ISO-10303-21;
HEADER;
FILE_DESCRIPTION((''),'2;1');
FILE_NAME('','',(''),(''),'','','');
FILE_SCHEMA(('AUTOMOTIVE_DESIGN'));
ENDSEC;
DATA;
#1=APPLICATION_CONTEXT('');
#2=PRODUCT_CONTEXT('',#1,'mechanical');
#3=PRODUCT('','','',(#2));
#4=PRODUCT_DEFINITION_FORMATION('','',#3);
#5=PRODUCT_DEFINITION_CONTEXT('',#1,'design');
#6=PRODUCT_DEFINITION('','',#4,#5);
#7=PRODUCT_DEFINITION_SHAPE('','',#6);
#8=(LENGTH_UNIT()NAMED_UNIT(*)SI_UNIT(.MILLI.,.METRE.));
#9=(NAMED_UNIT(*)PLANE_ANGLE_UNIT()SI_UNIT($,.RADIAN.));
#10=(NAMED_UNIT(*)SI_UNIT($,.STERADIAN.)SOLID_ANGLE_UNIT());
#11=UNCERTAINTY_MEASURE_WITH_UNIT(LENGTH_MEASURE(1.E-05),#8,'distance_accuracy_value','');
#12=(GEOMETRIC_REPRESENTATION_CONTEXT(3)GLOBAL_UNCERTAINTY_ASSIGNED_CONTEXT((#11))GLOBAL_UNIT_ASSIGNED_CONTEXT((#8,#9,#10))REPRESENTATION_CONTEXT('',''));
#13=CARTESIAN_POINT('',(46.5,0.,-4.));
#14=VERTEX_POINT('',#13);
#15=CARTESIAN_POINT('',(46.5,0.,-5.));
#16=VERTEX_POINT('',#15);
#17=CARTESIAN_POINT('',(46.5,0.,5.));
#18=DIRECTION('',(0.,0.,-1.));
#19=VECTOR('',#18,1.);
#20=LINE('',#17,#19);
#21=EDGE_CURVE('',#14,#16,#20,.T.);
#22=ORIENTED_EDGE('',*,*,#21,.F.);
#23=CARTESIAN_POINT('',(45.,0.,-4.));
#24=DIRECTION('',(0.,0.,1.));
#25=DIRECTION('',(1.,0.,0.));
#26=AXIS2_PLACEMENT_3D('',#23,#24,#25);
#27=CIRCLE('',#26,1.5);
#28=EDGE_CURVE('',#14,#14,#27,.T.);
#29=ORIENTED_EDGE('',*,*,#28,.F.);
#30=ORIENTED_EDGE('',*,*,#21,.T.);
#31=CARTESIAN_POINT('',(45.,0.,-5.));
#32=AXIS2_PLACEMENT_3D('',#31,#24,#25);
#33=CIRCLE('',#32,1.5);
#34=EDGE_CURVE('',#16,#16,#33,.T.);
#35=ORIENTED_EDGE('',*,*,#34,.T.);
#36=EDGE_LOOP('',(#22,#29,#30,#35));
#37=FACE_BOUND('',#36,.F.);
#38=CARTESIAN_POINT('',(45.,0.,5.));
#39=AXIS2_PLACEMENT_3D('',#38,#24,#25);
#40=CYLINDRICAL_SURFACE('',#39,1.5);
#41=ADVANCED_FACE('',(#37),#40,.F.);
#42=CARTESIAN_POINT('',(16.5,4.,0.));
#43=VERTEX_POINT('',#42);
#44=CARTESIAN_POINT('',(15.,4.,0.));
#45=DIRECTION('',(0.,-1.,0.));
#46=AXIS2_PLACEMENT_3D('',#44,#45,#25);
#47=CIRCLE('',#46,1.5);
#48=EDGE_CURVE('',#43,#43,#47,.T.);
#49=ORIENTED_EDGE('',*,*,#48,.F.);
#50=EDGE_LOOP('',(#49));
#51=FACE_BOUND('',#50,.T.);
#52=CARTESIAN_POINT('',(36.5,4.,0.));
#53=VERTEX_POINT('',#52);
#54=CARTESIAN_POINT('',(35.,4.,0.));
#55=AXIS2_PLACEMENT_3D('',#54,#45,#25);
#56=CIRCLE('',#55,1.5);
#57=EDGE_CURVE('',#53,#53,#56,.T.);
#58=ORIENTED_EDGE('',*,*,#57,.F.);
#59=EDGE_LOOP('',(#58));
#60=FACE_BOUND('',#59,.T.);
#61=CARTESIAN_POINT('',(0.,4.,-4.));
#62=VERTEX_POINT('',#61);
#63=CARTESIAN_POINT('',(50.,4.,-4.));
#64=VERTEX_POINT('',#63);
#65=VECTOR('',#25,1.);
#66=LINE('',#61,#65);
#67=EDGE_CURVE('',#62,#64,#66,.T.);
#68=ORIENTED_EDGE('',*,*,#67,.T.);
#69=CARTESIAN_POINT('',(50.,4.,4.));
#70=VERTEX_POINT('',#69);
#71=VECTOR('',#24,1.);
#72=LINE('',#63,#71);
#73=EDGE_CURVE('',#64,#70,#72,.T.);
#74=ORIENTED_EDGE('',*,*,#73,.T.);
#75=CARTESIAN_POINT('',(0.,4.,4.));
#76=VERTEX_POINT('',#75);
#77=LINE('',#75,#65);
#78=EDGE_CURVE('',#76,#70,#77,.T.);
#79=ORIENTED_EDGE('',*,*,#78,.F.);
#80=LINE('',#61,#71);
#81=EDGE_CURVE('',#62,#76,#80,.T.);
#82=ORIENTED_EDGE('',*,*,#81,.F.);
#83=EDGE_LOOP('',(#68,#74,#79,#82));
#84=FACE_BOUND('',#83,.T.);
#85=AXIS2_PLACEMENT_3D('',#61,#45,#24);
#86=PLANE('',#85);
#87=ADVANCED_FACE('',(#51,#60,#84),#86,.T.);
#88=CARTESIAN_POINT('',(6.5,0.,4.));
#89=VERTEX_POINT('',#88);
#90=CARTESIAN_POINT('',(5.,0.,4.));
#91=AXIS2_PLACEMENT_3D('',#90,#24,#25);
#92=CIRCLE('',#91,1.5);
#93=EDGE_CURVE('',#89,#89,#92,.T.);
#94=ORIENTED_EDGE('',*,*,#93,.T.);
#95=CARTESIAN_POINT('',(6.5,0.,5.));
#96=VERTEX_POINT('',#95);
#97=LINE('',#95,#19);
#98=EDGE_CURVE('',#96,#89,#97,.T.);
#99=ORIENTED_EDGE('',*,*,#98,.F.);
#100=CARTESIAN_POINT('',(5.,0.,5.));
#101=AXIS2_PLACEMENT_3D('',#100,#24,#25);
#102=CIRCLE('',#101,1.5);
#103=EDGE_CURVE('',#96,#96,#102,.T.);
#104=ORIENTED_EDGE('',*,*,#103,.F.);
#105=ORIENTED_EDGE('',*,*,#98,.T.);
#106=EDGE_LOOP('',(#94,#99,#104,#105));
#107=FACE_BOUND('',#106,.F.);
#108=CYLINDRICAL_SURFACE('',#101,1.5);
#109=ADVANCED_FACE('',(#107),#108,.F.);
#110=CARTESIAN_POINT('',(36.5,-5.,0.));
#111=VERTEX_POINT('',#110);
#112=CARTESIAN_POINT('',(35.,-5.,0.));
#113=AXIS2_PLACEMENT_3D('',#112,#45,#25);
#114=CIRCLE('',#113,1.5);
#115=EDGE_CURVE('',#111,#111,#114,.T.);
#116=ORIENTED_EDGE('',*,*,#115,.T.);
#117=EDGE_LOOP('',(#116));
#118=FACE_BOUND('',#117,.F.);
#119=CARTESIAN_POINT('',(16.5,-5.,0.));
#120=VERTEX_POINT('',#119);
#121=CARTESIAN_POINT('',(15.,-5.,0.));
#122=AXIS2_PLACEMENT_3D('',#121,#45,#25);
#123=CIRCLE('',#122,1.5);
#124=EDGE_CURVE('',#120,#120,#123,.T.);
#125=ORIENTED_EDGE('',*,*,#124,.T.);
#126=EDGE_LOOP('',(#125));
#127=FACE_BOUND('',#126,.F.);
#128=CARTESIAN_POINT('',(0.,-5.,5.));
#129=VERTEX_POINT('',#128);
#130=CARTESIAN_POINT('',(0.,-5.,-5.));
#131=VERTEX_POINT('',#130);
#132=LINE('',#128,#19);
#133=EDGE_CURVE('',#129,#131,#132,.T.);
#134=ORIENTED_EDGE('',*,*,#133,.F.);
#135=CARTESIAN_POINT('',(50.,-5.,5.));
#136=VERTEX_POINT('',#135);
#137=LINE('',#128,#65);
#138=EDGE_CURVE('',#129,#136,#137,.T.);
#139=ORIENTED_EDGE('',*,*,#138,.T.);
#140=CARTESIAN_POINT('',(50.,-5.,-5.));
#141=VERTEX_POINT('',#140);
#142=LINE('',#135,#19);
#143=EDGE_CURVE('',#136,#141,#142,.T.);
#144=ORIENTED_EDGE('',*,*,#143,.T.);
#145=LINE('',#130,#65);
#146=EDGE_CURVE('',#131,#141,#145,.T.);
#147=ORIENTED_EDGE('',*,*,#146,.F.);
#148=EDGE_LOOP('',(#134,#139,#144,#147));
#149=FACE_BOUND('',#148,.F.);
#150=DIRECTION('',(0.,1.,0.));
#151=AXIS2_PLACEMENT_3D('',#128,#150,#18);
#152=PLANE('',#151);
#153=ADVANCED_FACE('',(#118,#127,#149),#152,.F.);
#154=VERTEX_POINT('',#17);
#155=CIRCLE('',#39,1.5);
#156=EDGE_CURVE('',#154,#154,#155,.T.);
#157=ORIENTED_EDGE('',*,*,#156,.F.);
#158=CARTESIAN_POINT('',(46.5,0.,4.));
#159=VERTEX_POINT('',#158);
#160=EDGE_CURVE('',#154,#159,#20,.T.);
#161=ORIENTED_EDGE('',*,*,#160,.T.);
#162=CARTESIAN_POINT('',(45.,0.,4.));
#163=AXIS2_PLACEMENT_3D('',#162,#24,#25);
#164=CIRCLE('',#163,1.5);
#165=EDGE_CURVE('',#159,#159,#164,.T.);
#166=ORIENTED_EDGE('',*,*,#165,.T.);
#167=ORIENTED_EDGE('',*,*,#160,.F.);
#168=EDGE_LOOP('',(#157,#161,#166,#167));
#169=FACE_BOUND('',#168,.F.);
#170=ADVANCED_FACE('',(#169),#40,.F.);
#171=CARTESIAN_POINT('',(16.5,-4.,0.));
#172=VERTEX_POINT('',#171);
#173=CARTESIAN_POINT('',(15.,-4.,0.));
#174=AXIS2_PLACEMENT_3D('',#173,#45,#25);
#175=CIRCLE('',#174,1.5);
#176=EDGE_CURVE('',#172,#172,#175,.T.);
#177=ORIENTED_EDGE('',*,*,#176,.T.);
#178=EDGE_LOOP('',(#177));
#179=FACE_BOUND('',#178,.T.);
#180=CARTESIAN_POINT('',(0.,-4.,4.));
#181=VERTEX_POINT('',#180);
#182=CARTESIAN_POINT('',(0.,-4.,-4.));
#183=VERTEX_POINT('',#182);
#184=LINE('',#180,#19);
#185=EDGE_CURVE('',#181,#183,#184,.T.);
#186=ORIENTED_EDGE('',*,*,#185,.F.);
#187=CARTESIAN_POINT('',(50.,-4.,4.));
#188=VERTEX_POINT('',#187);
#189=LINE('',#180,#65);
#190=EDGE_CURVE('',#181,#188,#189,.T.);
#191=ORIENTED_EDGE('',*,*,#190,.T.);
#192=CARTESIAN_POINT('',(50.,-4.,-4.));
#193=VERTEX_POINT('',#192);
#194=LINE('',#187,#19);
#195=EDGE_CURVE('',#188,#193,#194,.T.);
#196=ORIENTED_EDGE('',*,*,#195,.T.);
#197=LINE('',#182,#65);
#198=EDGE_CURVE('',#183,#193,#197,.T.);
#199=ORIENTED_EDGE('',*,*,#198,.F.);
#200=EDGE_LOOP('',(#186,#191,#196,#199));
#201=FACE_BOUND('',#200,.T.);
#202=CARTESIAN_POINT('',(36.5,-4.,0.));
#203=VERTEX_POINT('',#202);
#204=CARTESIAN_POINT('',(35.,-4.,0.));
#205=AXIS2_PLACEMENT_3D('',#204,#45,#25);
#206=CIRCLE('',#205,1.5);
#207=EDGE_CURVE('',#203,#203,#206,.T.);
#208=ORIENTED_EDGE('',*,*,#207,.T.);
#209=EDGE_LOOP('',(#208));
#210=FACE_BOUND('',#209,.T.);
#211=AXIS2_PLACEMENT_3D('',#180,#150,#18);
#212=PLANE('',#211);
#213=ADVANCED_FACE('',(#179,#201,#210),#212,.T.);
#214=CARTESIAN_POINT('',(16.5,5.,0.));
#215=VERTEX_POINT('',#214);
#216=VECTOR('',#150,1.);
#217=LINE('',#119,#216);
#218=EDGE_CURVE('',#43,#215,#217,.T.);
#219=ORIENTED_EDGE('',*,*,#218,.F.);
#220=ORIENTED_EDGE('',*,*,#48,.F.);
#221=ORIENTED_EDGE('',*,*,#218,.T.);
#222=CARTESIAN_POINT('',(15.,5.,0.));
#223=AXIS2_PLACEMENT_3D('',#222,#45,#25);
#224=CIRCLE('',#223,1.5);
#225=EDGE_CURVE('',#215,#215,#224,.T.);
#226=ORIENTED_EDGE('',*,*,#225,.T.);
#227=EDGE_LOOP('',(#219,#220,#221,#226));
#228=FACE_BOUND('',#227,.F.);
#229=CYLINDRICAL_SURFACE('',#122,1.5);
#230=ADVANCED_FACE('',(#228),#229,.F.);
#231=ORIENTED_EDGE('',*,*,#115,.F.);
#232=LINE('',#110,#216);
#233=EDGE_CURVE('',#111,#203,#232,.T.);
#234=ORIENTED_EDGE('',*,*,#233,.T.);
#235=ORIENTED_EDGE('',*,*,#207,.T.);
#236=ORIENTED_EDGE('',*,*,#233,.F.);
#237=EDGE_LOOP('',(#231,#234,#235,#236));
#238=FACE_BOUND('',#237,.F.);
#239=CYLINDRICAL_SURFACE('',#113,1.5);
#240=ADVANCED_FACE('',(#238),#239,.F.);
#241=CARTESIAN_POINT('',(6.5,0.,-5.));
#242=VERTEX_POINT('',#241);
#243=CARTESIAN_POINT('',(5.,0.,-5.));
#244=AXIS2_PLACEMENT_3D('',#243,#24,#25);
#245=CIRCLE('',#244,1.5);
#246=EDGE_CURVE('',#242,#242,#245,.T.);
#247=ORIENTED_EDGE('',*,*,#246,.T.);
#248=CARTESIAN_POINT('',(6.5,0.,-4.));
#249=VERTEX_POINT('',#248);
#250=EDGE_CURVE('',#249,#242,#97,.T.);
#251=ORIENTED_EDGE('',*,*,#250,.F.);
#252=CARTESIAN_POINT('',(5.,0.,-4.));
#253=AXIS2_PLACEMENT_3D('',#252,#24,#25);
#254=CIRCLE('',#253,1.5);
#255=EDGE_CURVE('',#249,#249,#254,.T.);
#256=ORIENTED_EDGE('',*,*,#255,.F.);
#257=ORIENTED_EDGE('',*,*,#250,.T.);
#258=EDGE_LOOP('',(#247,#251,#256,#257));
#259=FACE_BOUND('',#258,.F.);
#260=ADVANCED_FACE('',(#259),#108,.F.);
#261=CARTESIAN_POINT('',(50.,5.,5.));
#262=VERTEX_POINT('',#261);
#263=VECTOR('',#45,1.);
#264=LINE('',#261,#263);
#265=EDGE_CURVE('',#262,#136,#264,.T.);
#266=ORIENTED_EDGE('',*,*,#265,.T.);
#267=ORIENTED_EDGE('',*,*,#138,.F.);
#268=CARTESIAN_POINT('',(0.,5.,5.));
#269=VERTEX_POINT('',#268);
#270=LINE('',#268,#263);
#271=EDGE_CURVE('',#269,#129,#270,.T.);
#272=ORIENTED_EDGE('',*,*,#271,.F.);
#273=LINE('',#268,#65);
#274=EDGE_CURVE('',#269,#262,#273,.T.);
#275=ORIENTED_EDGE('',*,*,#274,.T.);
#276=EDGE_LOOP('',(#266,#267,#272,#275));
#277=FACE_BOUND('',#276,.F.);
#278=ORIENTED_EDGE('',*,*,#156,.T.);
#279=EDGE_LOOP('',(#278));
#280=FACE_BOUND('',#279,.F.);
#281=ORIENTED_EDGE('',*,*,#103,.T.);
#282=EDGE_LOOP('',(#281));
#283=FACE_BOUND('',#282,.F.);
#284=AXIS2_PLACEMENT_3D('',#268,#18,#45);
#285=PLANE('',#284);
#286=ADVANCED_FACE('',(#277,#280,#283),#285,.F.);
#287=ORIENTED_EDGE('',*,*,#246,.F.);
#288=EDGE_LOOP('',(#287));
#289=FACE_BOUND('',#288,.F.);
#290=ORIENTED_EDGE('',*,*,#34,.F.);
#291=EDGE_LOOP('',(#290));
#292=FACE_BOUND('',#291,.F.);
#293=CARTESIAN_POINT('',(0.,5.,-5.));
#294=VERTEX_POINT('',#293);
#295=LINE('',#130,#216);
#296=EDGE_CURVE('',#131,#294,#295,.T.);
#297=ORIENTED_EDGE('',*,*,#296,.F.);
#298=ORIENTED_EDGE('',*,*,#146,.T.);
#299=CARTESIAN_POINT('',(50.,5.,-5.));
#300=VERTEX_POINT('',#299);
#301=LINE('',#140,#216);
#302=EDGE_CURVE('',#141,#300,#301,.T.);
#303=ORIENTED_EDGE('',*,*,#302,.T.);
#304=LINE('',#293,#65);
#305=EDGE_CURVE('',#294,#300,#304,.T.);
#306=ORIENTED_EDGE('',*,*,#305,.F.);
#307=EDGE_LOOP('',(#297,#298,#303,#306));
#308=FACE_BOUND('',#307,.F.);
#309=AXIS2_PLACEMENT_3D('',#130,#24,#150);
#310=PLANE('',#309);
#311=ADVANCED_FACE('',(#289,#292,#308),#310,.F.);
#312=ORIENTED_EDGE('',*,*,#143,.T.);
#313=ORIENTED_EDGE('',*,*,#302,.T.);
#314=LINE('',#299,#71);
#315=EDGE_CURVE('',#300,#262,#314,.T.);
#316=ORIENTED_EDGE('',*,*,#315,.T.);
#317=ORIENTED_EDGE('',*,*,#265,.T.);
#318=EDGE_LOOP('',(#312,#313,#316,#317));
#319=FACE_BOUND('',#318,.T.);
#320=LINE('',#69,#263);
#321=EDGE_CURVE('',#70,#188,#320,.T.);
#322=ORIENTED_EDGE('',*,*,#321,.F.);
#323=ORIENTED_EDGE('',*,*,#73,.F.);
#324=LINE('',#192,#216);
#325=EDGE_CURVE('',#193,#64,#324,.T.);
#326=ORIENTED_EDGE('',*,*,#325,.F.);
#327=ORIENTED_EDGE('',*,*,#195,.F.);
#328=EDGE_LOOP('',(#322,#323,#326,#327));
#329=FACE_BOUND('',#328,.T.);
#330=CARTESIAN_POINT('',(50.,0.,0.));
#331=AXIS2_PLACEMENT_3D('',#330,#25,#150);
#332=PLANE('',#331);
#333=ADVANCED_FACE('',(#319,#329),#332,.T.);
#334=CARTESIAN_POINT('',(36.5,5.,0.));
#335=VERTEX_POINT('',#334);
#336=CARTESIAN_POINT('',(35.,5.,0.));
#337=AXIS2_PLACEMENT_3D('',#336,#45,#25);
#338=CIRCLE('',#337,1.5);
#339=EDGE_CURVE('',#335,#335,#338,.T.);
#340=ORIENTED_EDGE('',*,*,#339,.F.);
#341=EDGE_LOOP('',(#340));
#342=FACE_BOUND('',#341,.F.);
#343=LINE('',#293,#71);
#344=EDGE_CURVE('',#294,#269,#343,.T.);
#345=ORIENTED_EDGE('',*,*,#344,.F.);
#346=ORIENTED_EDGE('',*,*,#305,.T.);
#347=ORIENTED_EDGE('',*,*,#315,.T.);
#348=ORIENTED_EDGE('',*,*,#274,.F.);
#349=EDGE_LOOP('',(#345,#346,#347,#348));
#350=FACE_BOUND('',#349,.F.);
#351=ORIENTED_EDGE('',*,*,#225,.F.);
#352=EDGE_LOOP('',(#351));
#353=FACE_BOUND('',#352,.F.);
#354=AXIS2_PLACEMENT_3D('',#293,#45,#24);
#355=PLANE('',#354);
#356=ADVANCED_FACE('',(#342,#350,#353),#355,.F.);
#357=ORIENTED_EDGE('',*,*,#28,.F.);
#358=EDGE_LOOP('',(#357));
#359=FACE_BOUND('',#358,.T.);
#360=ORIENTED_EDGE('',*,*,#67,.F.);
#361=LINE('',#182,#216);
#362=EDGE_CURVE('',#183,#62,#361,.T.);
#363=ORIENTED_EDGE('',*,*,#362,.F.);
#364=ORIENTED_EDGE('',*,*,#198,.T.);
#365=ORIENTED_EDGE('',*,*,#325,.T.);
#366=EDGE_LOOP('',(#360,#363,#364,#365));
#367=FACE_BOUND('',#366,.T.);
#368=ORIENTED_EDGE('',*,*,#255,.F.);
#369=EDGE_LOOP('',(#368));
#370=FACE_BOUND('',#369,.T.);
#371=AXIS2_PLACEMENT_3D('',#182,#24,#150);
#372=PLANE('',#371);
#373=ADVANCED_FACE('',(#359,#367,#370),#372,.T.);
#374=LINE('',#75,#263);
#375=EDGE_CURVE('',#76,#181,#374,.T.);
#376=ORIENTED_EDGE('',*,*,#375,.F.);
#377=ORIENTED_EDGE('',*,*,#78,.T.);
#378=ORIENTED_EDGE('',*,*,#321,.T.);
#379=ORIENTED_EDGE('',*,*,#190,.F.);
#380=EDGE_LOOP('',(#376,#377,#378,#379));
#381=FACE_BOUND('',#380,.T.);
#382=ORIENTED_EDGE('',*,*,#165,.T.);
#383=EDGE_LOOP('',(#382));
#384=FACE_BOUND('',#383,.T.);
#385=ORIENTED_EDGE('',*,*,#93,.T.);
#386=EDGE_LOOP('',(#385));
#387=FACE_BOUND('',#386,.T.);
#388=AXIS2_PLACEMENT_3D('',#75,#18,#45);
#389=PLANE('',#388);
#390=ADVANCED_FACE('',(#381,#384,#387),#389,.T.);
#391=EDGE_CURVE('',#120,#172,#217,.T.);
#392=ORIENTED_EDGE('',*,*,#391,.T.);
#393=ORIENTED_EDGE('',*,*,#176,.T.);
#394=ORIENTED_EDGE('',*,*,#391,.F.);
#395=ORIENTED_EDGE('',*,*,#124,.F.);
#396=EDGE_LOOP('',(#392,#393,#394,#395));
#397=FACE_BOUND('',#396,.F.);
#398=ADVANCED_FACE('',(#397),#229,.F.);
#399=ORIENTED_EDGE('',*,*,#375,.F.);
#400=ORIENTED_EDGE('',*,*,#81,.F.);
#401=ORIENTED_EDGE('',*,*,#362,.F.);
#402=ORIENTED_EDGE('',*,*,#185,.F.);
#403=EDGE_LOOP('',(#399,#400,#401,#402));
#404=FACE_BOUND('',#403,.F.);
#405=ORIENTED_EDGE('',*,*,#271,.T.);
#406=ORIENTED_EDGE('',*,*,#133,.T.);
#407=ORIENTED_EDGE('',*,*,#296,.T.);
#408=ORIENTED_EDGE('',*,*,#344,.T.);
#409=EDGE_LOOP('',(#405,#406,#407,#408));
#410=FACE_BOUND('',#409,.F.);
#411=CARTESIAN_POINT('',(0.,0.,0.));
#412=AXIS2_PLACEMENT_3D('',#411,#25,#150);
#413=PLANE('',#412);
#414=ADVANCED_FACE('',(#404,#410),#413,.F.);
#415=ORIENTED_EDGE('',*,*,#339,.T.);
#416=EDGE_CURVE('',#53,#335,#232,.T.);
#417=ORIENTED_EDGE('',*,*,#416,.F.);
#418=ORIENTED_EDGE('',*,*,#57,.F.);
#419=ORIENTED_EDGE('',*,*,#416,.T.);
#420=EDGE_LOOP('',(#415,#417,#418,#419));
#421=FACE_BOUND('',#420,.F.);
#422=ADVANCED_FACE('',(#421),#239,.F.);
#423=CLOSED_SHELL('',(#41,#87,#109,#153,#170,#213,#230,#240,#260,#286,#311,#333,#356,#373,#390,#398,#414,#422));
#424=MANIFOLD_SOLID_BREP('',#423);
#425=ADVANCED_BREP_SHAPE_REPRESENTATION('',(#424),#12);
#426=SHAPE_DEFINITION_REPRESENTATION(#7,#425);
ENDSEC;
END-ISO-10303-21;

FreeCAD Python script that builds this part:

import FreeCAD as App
import Part
import Sketcher
from FreeCAD import Vector


def add_polygon(sketch, points):
    """Adds a closed chain of lines whose ends are joined by coincident constraints."""
    first, n = sketch.GeometryCount, len(points)
    for a, b in zip(points, points[1:] + points[:1]):
        sketch.addGeometry(Part.LineSegment(App.Vector(*a, 0), App.Vector(*b, 0)), False)
    for i in range(n):
        sketch.addConstraint(Sketcher.Constraint("Coincident", first + i, 2, first + (i + 1) % n, 1))

doc = App.newDocument("Part")
body = doc.addObject("PartDesign::Body", "Body")

# Sketch on YZ plane
sketch1 = body.newObject("Sketcher::SketchObject", "Sketch")
sketch1.AttachmentSupport = (doc.getObject("YZ_Plane"), [""])
sketch1.MapMode = "FlatFace"
add_polygon(sketch1, [(5, -5), (5, 5), (-5, 5), (-5, -5)])  # lines 0-3
add_polygon(sketch1, [(-4, 4), (4, 4), (4, -4), (-4, -4)])  # lines 4-7
sketch1.addConstraint([
    Sketcher.Constraint("Vertical", 0),
    Sketcher.Constraint("Horizontal", 1),
    Sketcher.Constraint("Vertical", 2),
    Sketcher.Constraint("Horizontal", 3),
    Sketcher.Constraint("Horizontal", 4),
    Sketcher.Constraint("Vertical", 5),
    Sketcher.Constraint("Horizontal", 6),
    Sketcher.Constraint("Vertical", 7),
    Sketcher.Constraint("Symmetric", 0, 2, 2, 2, -1, 1),
    Sketcher.Constraint("Symmetric", 4, 2, 6, 2, -1, 1),
    Sketcher.Constraint("Equal", 3, 0),
    Sketcher.Constraint("Equal", 6, 5),
    Sketcher.Constraint("DistanceX", 1, 2, 1, 1, 10.0),
    Sketcher.Constraint("DistanceX", 4, 2, 0, 2, 1.0),
])
pad1 = body.newObject("PartDesign::Pad", "Pad")
pad1.Profile = sketch1
pad1.Length = 50

# Sketch on XY plane
sketch2 = body.newObject("Sketcher::SketchObject", "Sketch001")
sketch2.AttachmentSupport = (doc.getObject("XY_Plane"), [""])
sketch2.MapMode = "FlatFace"
sketch2.AttachmentOffset = App.Placement(Vector(0, 0, 5), App.Rotation())
sketch2.addGeometry([
    Part.Circle(Vector(5, 0, 0), Vector(0, 0, 1), 1.5),
    Part.Circle(Vector(45, 0, 0), Vector(0, 0, 1), 1.5),
], False)
sketch2.addConstraint([
    Sketcher.Constraint("Equal", 0, 1),
    Sketcher.Constraint("PointOnObject", 0, 3, -1),
    Sketcher.Constraint("PointOnObject", 1, 3, -1),
    Sketcher.Constraint("Diameter", 0, 3.0),
    Sketcher.Constraint("DistanceX", -1, 1, 0, 3, 5.0),
    Sketcher.Constraint("DistanceX", -1, 1, 1, 3, 45.0),
])
pocket1 = body.newObject("PartDesign::Pocket", "Pocket")
pocket1.Profile = sketch2
pocket1.Length = 50

# Sketch on XZ plane
sketch3 = body.newObject("Sketcher::SketchObject", "Sketch002")
sketch3.AttachmentSupport = (doc.getObject("XZ_Plane"), [""])
sketch3.MapMode = "FlatFace"
sketch3.AttachmentOffset = App.Placement(Vector(0, 0, 5), App.Rotation())
sketch3.addGeometry([
    Part.Circle(Vector(15, 0, 0), Vector(0, 0, 1), 1.5),
    Part.Circle(Vector(35, 0, 0), Vector(0, 0, 1), 1.5),
], False)
sketch3.addConstraint([
    Sketcher.Constraint("Equal", 0, 1),
    Sketcher.Constraint("PointOnObject", 0, 3, -1),
    Sketcher.Constraint("PointOnObject", 1, 3, -1),
    Sketcher.Constraint("Diameter", 0, 3.0),
    Sketcher.Constraint("DistanceX", -1, 1, 0, 3, 15.0),
    Sketcher.Constraint("DistanceX", -1, 1, 1, 3, 35.0),
])
pocket2 = body.newObject("PartDesign::Pocket", "Pocket001")
pocket2.Profile = sketch3
pocket2.Length = 50

doc.recompute()
